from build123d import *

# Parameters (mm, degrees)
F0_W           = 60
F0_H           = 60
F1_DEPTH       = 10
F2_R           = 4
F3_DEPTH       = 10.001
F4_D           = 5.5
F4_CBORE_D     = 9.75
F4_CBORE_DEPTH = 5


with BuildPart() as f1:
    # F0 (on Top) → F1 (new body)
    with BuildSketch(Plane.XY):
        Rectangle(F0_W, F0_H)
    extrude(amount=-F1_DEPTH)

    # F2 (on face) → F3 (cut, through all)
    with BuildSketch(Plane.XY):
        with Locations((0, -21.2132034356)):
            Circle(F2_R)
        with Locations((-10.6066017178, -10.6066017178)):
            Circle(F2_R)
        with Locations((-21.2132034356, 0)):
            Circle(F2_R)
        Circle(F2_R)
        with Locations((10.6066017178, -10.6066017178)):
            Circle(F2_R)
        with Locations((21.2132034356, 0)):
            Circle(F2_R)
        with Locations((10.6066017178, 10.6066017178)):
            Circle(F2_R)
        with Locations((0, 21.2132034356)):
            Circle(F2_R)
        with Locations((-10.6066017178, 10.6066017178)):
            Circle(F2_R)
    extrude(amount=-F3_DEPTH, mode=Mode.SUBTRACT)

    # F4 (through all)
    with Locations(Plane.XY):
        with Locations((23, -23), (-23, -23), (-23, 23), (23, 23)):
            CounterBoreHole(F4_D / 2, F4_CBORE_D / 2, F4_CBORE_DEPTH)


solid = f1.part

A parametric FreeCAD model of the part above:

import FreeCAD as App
import Part
import Sketcher

V = App.Vector
Q = App.Units.Quantity

doc = App.newDocument("Part")
params = doc.addObject("Spreadsheet::Sheet", "Params")
for row, (alias, value) in enumerate([
    ("sketch1_width", "60 mm"),
    ("pad1_length", "10 mm"),
    ("sketch2_diameter", "8 mm"),
    ("sketch3_diameter", "5.5 mm"),
    ("hole_diameter", "5.5 mm"),
    ("hole_cbore_diameter", "9.75 mm"),
    ("hole_cbore_depth", "5 mm"),
], start=1):
    params.set(f"A{row}", alias)
    params.set(f"B{row}", "=" + value)
    params.setAlias(f"B{row}", alias)

body = doc.addObject("PartDesign::Body", "Body")

# Sketch on XY plane
sketch1 = body.newObject("Sketcher::SketchObject", "Sketch")
sketch1.AttachmentSupport = (doc.getObject("XY_Plane"), [""])
sketch1.MapMode = "FlatFace"
sketch1.addGeometry(Part.LineSegment(V(-30, 30, 0), V(-30, -30, 0)), False)
sketch1.addGeometry(Part.LineSegment(V(-30, -30, 0), V(30, -30, 0)), False)
sketch1.addGeometry(Part.LineSegment(V(30, -30, 0), V(30, 30, 0)), False)
sketch1.addGeometry(Part.LineSegment(V(30, 30, 0), V(-30, 30, 0)), False)
sketch1.addConstraint(Sketcher.Constraint("Coincident", 0, 2, 1, 1))
sketch1.addConstraint(Sketcher.Constraint("Coincident", 1, 2, 2, 1))
sketch1.addConstraint(Sketcher.Constraint("Coincident", 2, 2, 3, 1))
sketch1.addConstraint(Sketcher.Constraint("Coincident", 3, 2, 0, 1))
sketch1.addConstraint(Sketcher.Constraint("Vertical", 0))
sketch1.addConstraint(Sketcher.Constraint("Horizontal", 1))
sketch1.addConstraint(Sketcher.Constraint("Vertical", 2))
sketch1.addConstraint(Sketcher.Constraint("Horizontal", 3))
sketch1.addConstraint(Sketcher.Constraint("Symmetric", 0, 2, 2, 2, -1, 1))
sketch1.addConstraint(Sketcher.Constraint("Equal", 3, 0))
sketch1.addConstraint(Sketcher.Constraint("DistanceX", 1, 1, 1, 2, Q("60 mm")))
sketch1.setExpression("Constraints[10]", "Params.sketch1_width")
pad1 = body.newObject("PartDesign::Pad", "Pad")
pad1.Profile = sketch1
pad1.setExpression("Length", "Params.pad1_length")
pad1.Reversed = True

# Sketch on XY plane
sketch2 = body.newObject("Sketcher::SketchObject", "Sketch001")
sketch2.AttachmentSupport = (doc.getObject("XY_Plane"), [""])
sketch2.MapMode = "FlatFace"
sketch2.addGeometry(Part.Circle(V(0, -21.2, 0), V(0, 0, 1), 4), False)
sketch2.addGeometry(Part.Circle(V(-10.6, -10.6, 0), V(0, 0, 1), 4), False)
sketch2.addGeometry(Part.Circle(V(-21.2, 0, 0), V(0, 0, 1), 4), False)
sketch2.addGeometry(Part.Circle(V(0, 0, 0), V(0, 0, 1), 4), False)
sketch2.addGeometry(Part.Circle(V(10.6, -10.6, 0), V(0, 0, 1), 4), False)
sketch2.addGeometry(Part.Circle(V(21.2, 0, 0), V(0, 0, 1), 4), False)
sketch2.addGeometry(Part.Circle(V(10.6, 10.6, 0), V(0, 0, 1), 4), False)
sketch2.addGeometry(Part.Circle(V(0, 21.2, 0), V(0, 0, 1), 4), False)
sketch2.addGeometry(Part.Circle(V(-10.6, 10.6, 0), V(0, 0, 1), 4), False)
sketch2.addConstraint(Sketcher.Constraint("Coincident", 3, 3, -1, 1))
sketch2.addConstraint(Sketcher.Constraint("Equal", 0, 1))
sketch2.addConstraint(Sketcher.Constraint("Equal", 1, 2))
sketch2.addConstraint(Sketcher.Constraint("Equal", 2, 3))
sketch2.addConstraint(Sketcher.Constraint("Equal", 3, 4))
sketch2.addConstraint(Sketcher.Constraint("Equal", 4, 5))
sketch2.addConstraint(Sketcher.Constraint("Equal", 5, 6))
sketch2.addConstraint(Sketcher.Constraint("Equal", 6, 7))
sketch2.addConstraint(Sketcher.Constraint("Equal", 7, 8))
sketch2.addConstraint(Sketcher.Constraint("Symmetric", 2, 3, 5, 3, -1, 1))
sketch2.addConstraint(Sketcher.Constraint("Symmetric", 1, 3, 6, 3, -1, 1))
sketch2.addConstraint(Sketcher.Constraint("Symmetric", 0, 3, 7, 3, -1, 1))
sketch2.addConstraint(Sketcher.Constraint("Symmetric", 4, 3, 8, 3, -1, 1))
sketch2.addConstraint(Sketcher.Constraint("Symmetric", 1, 3, 4, 3, -2))
sketch2.addConstraint(Sketcher.Constraint("PointOnObject", 0, 3, -2))
sketch2.addConstraint(Sketcher.Constraint("PointOnObject", 2, 3, -1))
sketch2.addConstraint(Sketcher.Constraint("Diameter", 0, Q("8 mm")))
sketch2.addConstraint(Sketcher.Constraint("DistanceX", 1, 3, -1, 1, Q("10.606602 mm")))
sketch2.addConstraint(Sketcher.Constraint("DistanceY", 1, 3, -1, 1, Q("10.606602 mm")))
sketch2.addConstraint(Sketcher.Constraint("DistanceY", 0, 3, 1, 3, Q("10.606602 mm")))
sketch2.addConstraint(Sketcher.Constraint("DistanceX", 2, 3, 1, 3, Q("10.606602 mm")))
sketch2.setExpression("Constraints[16]", "Params.sketch2_diameter")
pocket1 = body.newObject("PartDesign::Pocket", "Pocket")
pocket1.Profile = sketch2
pocket1.Type = "ThroughAll"

# Sketch on XY plane
sketch3 = body.newObject("Sketcher::SketchObject", "Sketch002")
sketch3.AttachmentSupport = (doc.getObject("XY_Plane"), [""])
sketch3.MapMode = "FlatFace"
sketch3.addGeometry(Part.Circle(V(23, -23, 0), V(0, 0, 1), 2.8), False)
sketch3.addGeometry(Part.Circle(V(-23, -23, 0), V(0, 0, 1), 2.8), False)
sketch3.addGeometry(Part.Circle(V(-23, 23, 0), V(0, 0, 1), 2.8), False)
sketch3.addGeometry(Part.Circle(V(23, 23, 0), V(0, 0, 1), 2.8), False)
sketch3.addConstraint(Sketcher.Constraint("Equal", 0, 1))
sketch3.addConstraint(Sketcher.Constraint("Equal", 1, 2))
sketch3.addConstraint(Sketcher.Constraint("Equal", 2, 3))
sketch3.addConstraint(Sketcher.Constraint("Symmetric", 0, 3, 2, 3, -1, 1))
sketch3.addConstraint(Sketcher.Constraint("Symmetric", 1, 3, 3, 3, -1, 1))
sketch3.addConstraint(Sketcher.Constraint("Symmetric", 0, 3, 1, 3, -2))
sketch3.addConstraint(Sketcher.Constraint("Diameter", 0, Q("5.5 mm")))
sketch3.addConstraint(Sketcher.Constraint("DistanceX", -1, 1, 0, 3, Q("23 mm")))
sketch3.addConstraint(Sketcher.Constraint("DistanceY", 0, 3, -1, 1, Q("23 mm")))
sketch3.setExpression("Constraints[6]", "Params.sketch3_diameter")
doc.recompute()
hole = body.newObject("PartDesign::Hole", "Hole")
hole.Profile = sketch3
hole.ThreadType = "None"
hole.setExpression("Diameter", "Params.hole_diameter")
hole.DepthType = "ThroughAll"
hole.HoleCutType = "Counterbore"
hole.setExpression("HoleCutDiameter", "Params.hole_cbore_diameter")
hole.setExpression("HoleCutDepth", "Params.hole_cbore_depth")

doc.recompute()
